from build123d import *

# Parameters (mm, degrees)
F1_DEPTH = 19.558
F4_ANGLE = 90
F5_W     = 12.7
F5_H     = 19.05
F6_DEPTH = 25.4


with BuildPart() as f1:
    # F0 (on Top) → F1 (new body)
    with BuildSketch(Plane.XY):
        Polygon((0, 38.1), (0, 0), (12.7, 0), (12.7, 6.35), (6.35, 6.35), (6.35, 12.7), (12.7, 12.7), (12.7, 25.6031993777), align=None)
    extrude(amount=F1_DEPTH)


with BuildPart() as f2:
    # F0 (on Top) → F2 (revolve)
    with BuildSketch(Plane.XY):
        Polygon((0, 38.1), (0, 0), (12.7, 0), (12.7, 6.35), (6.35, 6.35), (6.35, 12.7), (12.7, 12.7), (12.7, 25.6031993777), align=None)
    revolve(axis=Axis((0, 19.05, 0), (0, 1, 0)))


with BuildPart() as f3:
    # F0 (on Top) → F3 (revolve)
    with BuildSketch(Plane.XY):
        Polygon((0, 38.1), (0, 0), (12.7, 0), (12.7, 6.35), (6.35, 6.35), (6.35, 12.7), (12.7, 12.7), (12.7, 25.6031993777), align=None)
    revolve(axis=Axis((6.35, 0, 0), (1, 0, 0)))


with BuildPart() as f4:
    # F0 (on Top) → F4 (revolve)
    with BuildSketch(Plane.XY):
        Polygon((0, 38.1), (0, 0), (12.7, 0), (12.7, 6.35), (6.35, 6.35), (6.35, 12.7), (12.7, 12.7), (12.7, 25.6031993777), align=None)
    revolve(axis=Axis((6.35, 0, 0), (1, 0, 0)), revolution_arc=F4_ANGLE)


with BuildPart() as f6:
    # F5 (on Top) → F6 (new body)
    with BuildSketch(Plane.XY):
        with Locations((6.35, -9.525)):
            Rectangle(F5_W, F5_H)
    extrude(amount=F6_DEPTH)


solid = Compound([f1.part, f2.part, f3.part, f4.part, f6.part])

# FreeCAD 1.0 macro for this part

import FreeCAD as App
import Part
import Sketcher
Q = App.Units.Quantity


def add_polygon(sketch, points):
    """Adds a closed chain of lines whose ends are joined by coincident constraints."""
    first, n = sketch.GeometryCount, len(points)
    for a, b in zip(points, points[1:] + points[:1]):
        sketch.addGeometry(Part.LineSegment(App.Vector(*a, 0), App.Vector(*b, 0)), False)
    for i in range(n):
        sketch.addConstraint(Sketcher.Constraint("Coincident", first + i, 2, first + (i + 1) % n, 1))

doc = App.newDocument("Part")
body = doc.addObject("PartDesign::Body", "Body")

# Sketch on XY plane
sketch1 = body.newObject("Sketcher::SketchObject", "Sketch")
sketch1.AttachmentSupport = (doc.getObject("XY_Plane"), [""])
sketch1.MapMode = "FlatFace"
add_polygon(sketch1, [(0, 38), (0, 0), (13, 0), (13, 6), (6, 6), (6, 13), (13, 13), (13, 26)])  # lines 0-7
sketch1.addConstraint([
    Sketcher.Constraint("Vertical", 0),
    Sketcher.Constraint("Horizontal", 1),
    Sketcher.Constraint("Vertical", 2),
    Sketcher.Constraint("Horizontal", 3),
    Sketcher.Constraint("Vertical", 4),
    Sketcher.Constraint("Horizontal", 5),
    Sketcher.Constraint("Vertical", 6),
    Sketcher.Constraint("Coincident", 0, 2, -1, 1),
    Sketcher.Constraint("Vertical", 2, 2, 5, 2),
    Sketcher.Constraint("Equal", 5, 2),
    Sketcher.Constraint("Equal", 2, 4),
    Sketcher.Constraint("DistanceX", 1, 1, 1, 2, Q("0.5 in")),
    Sketcher.Constraint("DistanceY", 0, 2, 0, 1, Q("1.5 in")),
    Sketcher.Constraint("DistanceY", 4, 2, 7, 2, Q("1 in")),
    Sketcher.Constraint("DistanceY", 6, 1, 6, 2, Q("0.508 in")),
])
pad1 = body.newObject("PartDesign::Pad", "Pad")
pad1.Profile = sketch1
pad1.Length = Q("0.77 in")
body2 = doc.addObject("PartDesign::Body", "Body001")

# Sketch on XY plane
sketch2 = body2.newObject("Sketcher::SketchObject", "Sketch001")
sketch2.AttachmentSupport = (doc.getObject("XY_Plane001"), [""])
sketch2.MapMode = "FlatFace"
add_polygon(sketch2, [(0, 38), (0, 0), (13, 0), (13, 6), (6, 6), (6, 13), (13, 13), (13, 26)])  # lines 0-7
sketch2.addConstraint([
    Sketcher.Constraint("Vertical", 0),
    Sketcher.Constraint("Horizontal", 1),
    Sketcher.Constraint("Vertical", 2),
    Sketcher.Constraint("Horizontal", 3),
    Sketcher.Constraint("Vertical", 4),
    Sketcher.Constraint("Horizontal", 5),
    Sketcher.Constraint("Vertical", 6),
    Sketcher.Constraint("Coincident", 0, 2, -1, 1),
    Sketcher.Constraint("Vertical", 2, 2, 5, 2),
    Sketcher.Constraint("Equal", 5, 2),
    Sketcher.Constraint("Equal", 2, 4),
    Sketcher.Constraint("DistanceX", 1, 1, 1, 2, Q("0.5 in")),
    Sketcher.Constraint("DistanceY", 0, 2, 0, 1, Q("1.5 in")),
    Sketcher.Constraint("DistanceY", 4, 2, 7, 2, Q("1 in")),
    Sketcher.Constraint("DistanceY", 6, 1, 6, 2, Q("0.508 in")),
])
revolution = body2.newObject("PartDesign::Revolution", "Revolution")
revolution.Profile = sketch2
revolution.ReferenceAxis = (sketch2, ["V_Axis"])
revolution.Angle = 360
body3 = doc.addObject("PartDesign::Body", "Body002")

# Sketch on XY plane
sketch3 = body3.newObject("Sketcher::SketchObject", "Sketch002")
sketch3.AttachmentSupport = (doc.getObject("XY_Plane002"), [""])
sketch3.MapMode = "FlatFace"
add_polygon(sketch3, [(0, 38), (0, 0), (13, 0), (13, 6), (6, 6), (6, 13), (13, 13), (13, 26)])  # lines 0-7
sketch3.addConstraint([
    Sketcher.Constraint("Vertical", 0),
    Sketcher.Constraint("Horizontal", 1),
    Sketcher.Constraint("Vertical", 2),
    Sketcher.Constraint("Horizontal", 3),
    Sketcher.Constraint("Vertical", 4),
    Sketcher.Constraint("Horizontal", 5),
    Sketcher.Constraint("Vertical", 6),
    Sketcher.Constraint("Coincident", 0, 2, -1, 1),
    Sketcher.Constraint("Vertical", 2, 2, 5, 2),
    Sketcher.Constraint("Equal", 5, 2),
    Sketcher.Constraint("Equal", 2, 4),
    Sketcher.Constraint("DistanceX", 1, 1, 1, 2, Q("0.5 in")),
    Sketcher.Constraint("DistanceY", 0, 2, 0, 1, Q("1.5 in")),
    Sketcher.Constraint("DistanceY", 4, 2, 7, 2, Q("1 in")),
    Sketcher.Constraint("DistanceY", 6, 1, 6, 2, Q("0.508 in")),
])
revolution2 = body3.newObject("PartDesign::Revolution", "Revolution001")
revolution2.Profile = sketch3
revolution2.ReferenceAxis = (sketch3, ["H_Axis"])
revolution2.Angle = 360
body4 = doc.addObject("PartDesign::Body", "Body003")

# Sketch on XY plane
sketch4 = body4.newObject("Sketcher::SketchObject", "Sketch003")
sketch4.AttachmentSupport = (doc.getObject("XY_Plane003"), [""])
sketch4.MapMode = "FlatFace"
add_polygon(sketch4, [(0, 38), (0, 0), (13, 0), (13, 6), (6, 6), (6, 13), (13, 13), (13, 26)])  # lines 0-7
sketch4.addConstraint([
    Sketcher.Constraint("Vertical", 0),
    Sketcher.Constraint("Horizontal", 1),
    Sketcher.Constraint("Vertical", 2),
    Sketcher.Constraint("Horizontal", 3),
    Sketcher.Constraint("Vertical", 4),
    Sketcher.Constraint("Horizontal", 5),
    Sketcher.Constraint("Vertical", 6),
    Sketcher.Constraint("Coincident", 0, 2, -1, 1),
    Sketcher.Constraint("Vertical", 2, 2, 5, 2),
    Sketcher.Constraint("Equal", 5, 2),
    Sketcher.Constraint("Equal", 2, 4),
    Sketcher.Constraint("DistanceX", 1, 1, 1, 2, Q("0.5 in")),
    Sketcher.Constraint("DistanceY", 0, 2, 0, 1, Q("1.5 in")),
    Sketcher.Constraint("DistanceY", 4, 2, 7, 2, Q("1 in")),
    Sketcher.Constraint("DistanceY", 6, 1, 6, 2, Q("0.508 in")),
])
revolution3 = body4.newObject("PartDesign::Revolution", "Revolution002")
revolution3.Profile = sketch4
revolution3.ReferenceAxis = (sketch4, ["H_Axis"])
revolution3.Angle = 90
body5 = doc.addObject("PartDesign::Body", "Body004")

# Sketch on XY plane
sketch5 = body5.newObject("Sketcher::SketchObject", "Sketch004")
sketch5.AttachmentSupport = (doc.getObject("XY_Plane004"), [""])
sketch5.MapMode = "FlatFace"
add_polygon(sketch5, [(0, 0), (0, -19), (13, -19), (13, 0)])  # lines 0-3
sketch5.addConstraint([
    Sketcher.Constraint("Vertical", 0),
    Sketcher.Constraint("Horizontal", 1),
    Sketcher.Constraint("Vertical", 2),
    Sketcher.Constraint("Horizontal", 3),
    Sketcher.Constraint("Coincident", 3, 2, -1, 1),
    Sketcher.Constraint("DistanceX", 1, 1, 1, 2, Q("0.5 in")),
    Sketcher.Constraint("DistanceY", 0, 2, 0, 1, Q("0.75 in")),
])
pad2 = body5.newObject("PartDesign::Pad", "Pad001")
pad2.Profile = sketch5
pad2.Length = Q("1 in")

doc.recompute()
